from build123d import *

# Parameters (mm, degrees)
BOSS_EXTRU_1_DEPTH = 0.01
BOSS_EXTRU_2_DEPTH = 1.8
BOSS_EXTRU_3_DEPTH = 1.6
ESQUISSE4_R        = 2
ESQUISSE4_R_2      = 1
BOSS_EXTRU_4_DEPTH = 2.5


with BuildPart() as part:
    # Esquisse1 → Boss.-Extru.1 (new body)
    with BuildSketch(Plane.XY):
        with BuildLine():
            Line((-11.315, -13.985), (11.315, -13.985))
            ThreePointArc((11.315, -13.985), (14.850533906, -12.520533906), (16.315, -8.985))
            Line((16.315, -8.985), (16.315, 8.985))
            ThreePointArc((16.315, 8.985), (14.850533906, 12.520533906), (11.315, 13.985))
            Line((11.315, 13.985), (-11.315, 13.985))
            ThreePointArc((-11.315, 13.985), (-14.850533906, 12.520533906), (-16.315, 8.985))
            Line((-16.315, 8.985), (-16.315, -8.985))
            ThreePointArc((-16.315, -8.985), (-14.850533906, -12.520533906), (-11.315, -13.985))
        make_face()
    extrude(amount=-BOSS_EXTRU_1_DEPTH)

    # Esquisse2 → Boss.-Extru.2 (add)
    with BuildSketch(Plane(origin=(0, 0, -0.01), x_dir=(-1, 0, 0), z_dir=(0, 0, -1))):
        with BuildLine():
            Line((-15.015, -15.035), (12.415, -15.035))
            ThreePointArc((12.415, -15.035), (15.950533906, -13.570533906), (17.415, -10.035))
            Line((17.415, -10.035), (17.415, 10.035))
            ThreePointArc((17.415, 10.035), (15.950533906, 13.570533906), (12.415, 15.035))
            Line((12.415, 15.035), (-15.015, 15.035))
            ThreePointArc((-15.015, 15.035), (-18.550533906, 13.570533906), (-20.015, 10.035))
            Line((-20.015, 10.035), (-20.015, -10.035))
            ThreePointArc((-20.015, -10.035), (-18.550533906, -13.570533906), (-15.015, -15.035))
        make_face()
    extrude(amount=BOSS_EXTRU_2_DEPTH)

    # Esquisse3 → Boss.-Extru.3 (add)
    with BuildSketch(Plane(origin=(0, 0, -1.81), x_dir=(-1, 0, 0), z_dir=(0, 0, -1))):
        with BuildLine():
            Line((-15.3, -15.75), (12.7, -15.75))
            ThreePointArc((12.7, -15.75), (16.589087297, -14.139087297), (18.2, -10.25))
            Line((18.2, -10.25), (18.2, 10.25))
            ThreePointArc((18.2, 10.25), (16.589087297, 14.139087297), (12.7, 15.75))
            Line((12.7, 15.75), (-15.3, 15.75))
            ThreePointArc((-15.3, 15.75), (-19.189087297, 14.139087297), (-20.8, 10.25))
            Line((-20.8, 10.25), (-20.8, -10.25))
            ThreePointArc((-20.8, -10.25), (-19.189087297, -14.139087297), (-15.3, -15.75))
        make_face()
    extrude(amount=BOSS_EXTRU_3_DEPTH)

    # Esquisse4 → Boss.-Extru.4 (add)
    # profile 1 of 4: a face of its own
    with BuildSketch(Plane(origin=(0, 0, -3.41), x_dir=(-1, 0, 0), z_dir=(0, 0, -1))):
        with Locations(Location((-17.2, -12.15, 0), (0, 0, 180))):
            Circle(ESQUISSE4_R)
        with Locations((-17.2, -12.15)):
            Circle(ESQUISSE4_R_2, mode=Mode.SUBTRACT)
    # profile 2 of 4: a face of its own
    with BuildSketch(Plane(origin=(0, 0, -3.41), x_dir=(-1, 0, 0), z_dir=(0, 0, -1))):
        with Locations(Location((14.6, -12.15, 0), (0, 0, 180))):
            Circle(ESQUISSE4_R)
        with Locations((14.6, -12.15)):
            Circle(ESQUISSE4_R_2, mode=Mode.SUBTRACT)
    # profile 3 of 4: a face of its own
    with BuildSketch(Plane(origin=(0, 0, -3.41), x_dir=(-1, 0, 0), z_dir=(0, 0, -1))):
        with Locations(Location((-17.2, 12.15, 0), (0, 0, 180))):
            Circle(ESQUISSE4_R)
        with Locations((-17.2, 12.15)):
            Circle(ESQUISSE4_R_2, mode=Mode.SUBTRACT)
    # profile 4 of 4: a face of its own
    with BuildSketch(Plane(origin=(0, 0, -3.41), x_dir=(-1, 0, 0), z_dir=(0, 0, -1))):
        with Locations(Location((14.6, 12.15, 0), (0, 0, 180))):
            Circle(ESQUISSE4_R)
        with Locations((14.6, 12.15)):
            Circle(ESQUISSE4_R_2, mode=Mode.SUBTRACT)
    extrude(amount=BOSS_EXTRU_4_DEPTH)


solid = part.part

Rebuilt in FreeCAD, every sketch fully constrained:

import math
import FreeCAD as App
import Part
import Sketcher

V = App.Vector

doc = App.newDocument("Part")
body = doc.addObject("PartDesign::Body", "Body")

# Sketch on XY plane
sketch1 = body.newObject("Sketcher::SketchObject", "Sketch")
sketch1.AttachmentSupport = (doc.getObject("XY_Plane"), [""])
sketch1.MapMode = "FlatFace"
sketch1.addGeometry(Part.LineSegment(V(-11, -14, 0), V(11, -14, 0)), False)
sketch1.addGeometry(Part.ArcOfCircle(Part.Circle(V(11, -9, 0), V(0, 0, 1), 5), math.radians(-90), math.radians(0)), False)
sketch1.addGeometry(Part.LineSegment(V(16, -9, 0), V(16, 9, 0)), False)
sketch1.addGeometry(Part.ArcOfCircle(Part.Circle(V(11, 9, 0), V(0, 0, 1), 5), math.radians(0), math.radians(90)), False)
sketch1.addGeometry(Part.LineSegment(V(11, 14, 0), V(-11, 14, 0)), False)
sketch1.addGeometry(Part.ArcOfCircle(Part.Circle(V(-11, 9, 0), V(0, 0, 1), 5), math.radians(90), math.radians(180)), False)
sketch1.addGeometry(Part.LineSegment(V(-16, 9, 0), V(-16, -9, 0)), False)
sketch1.addGeometry(Part.ArcOfCircle(Part.Circle(V(-11, -9, 0), V(0, 0, 1), 5), math.radians(180), math.radians(270)), False)
sketch1.addConstraint(Sketcher.Constraint("Tangent", 0, 2, 1, 1))
sketch1.addConstraint(Sketcher.Constraint("Tangent", 1, 2, 2, 1))
sketch1.addConstraint(Sketcher.Constraint("Tangent", 2, 2, 3, 1))
sketch1.addConstraint(Sketcher.Constraint("Tangent", 3, 2, 4, 1))
sketch1.addConstraint(Sketcher.Constraint("Tangent", 4, 2, 5, 1))
sketch1.addConstraint(Sketcher.Constraint("Tangent", 5, 2, 6, 1))
sketch1.addConstraint(Sketcher.Constraint("Tangent", 6, 2, 7, 1))
sketch1.addConstraint(Sketcher.Constraint("Tangent", 7, 2, 0, 1))
sketch1.addConstraint(Sketcher.Constraint("Horizontal", 0))
sketch1.addConstraint(Sketcher.Constraint("Vertical", 2))
sketch1.addConstraint(Sketcher.Constraint("Horizontal", 4))
sketch1.addConstraint(Sketcher.Constraint("Vertical", 6))
sketch1.addConstraint(Sketcher.Constraint("Equal", 1, 3))
sketch1.addConstraint(Sketcher.Constraint("Equal", 3, 5))
sketch1.addConstraint(Sketcher.Constraint("Equal", 5, 7))
sketch1.addConstraint(Sketcher.Constraint("Symmetric", 1, 3, 5, 3, -1, 1))
sketch1.addConstraint(Sketcher.Constraint("Radius", 1, 5.0))
sketch1.addConstraint(Sketcher.Constraint("DistanceX", 0, 1, 0, 2, 22.63))
sketch1.addConstraint(Sketcher.Constraint("DistanceY", 2, 1, 2, 2, 17.97))
pad1 = body.newObject("PartDesign::Pad", "Pad")
pad1.Profile = sketch1
pad1.Length = 0.01
pad1.Reversed = True

# Sketch on XY plane
sketch2 = body.newObject("Sketcher::SketchObject", "Sketch001")
sketch2.AttachmentSupport = (doc.getObject("XY_Plane"), [""])
sketch2.MapMode = "FlatFace"
sketch2.AttachmentOffset = App.Placement(V(0, 0, -0.01), App.Rotation())
sketch2.addGeometry(Part.LineSegment(V(15, -15, 0), V(-12, -15, 0)), False)
sketch2.addGeometry(Part.ArcOfCircle(Part.Circle(V(-12, -10, 0), V(0, 0, 1), 5), math.radians(180), math.radians(270)), False)
sketch2.addGeometry(Part.LineSegment(V(-17, -10, 0), V(-17, 10, 0)), False)
sketch2.addGeometry(Part.ArcOfCircle(Part.Circle(V(-12, 10, 0), V(0, 0, 1), 5), math.radians(90), math.radians(180)), False)
sketch2.addGeometry(Part.LineSegment(V(-12, 15, 0), V(15, 15, 0)), False)
sketch2.addGeometry(Part.ArcOfCircle(Part.Circle(V(15, 10, 0), V(0, 0, 1), 5), math.radians(0), math.radians(90)), False)
sketch2.addGeometry(Part.LineSegment(V(20, 10, 0), V(20, -10, 0)), False)
sketch2.addGeometry(Part.ArcOfCircle(Part.Circle(V(15, -10, 0), V(0, 0, 1), 5), math.radians(-90), math.radians(0)), False)
sketch2.addConstraint(Sketcher.Constraint("Tangent", 0, 2, 1, 2))
sketch2.addConstraint(Sketcher.Constraint("Tangent", 1, 1, 2, 1))
sketch2.addConstraint(Sketcher.Constraint("Tangent", 2, 2, 3, 2))
sketch2.addConstraint(Sketcher.Constraint("Tangent", 3, 1, 4, 1))
sketch2.addConstraint(Sketcher.Constraint("Tangent", 4, 2, 5, 2))
sketch2.addConstraint(Sketcher.Constraint("Tangent", 5, 1, 6, 1))
sketch2.addConstraint(Sketcher.Constraint("Tangent", 6, 2, 7, 2))
sketch2.addConstraint(Sketcher.Constraint("Tangent", 7, 1, 0, 1))
sketch2.addConstraint(Sketcher.Constraint("Horizontal", 0))
sketch2.addConstraint(Sketcher.Constraint("Vertical", 2))
sketch2.addConstraint(Sketcher.Constraint("Horizontal", 4))
sketch2.addConstraint(Sketcher.Constraint("Vertical", 6))
sketch2.addConstraint(Sketcher.Constraint("Equal", 1, 3))
sketch2.addConstraint(Sketcher.Constraint("Equal", 3, 5))
sketch2.addConstraint(Sketcher.Constraint("Equal", 5, 7))
sketch2.addConstraint(Sketcher.Constraint("Radius", 1, 5.0))
sketch2.addConstraint(Sketcher.Constraint("DistanceX", 0, 2, 0, 1, 27.43))
sketch2.addConstraint(Sketcher.Constraint("DistanceY", 2, 1, 2, 2, 20.07))
sketch2.addConstraint(Sketcher.Constraint("DistanceX", 1, 3, -1, 1, 12.415))
sketch2.addConstraint(Sketcher.Constraint("DistanceY", 1, 3, -1, 1, 10.035))
pad2 = body.newObject("PartDesign::Pad", "Pad001")
pad2.Profile = sketch2
pad2.Length = 1.8
pad2.Reversed = True

# Sketch on XY plane
sketch3 = body.newObject("Sketcher::SketchObject", "Sketch002")
sketch3.AttachmentSupport = (doc.getObject("XY_Plane"), [""])
sketch3.MapMode = "FlatFace"
sketch3.AttachmentOffset = App.Placement(V(0, 0, -1.81), App.Rotation())
sketch3.addGeometry(Part.LineSegment(V(15, -16, 0), V(-13, -16, 0)), False)
sketch3.addGeometry(Part.ArcOfCircle(Part.Circle(V(-13, -10, 0), V(0, 0, 1), 5), math.radians(180), math.radians(270)), False)
sketch3.addGeometry(Part.LineSegment(V(-18, -10, 0), V(-18, 10, 0)), False)
sketch3.addGeometry(Part.ArcOfCircle(Part.Circle(V(-13, 10, 0), V(0, 0, 1), 5), math.radians(90), math.radians(180)), False)
sketch3.addGeometry(Part.LineSegment(V(-13, 16, 0), V(15, 16, 0)), False)
sketch3.addGeometry(Part.ArcOfCircle(Part.Circle(V(15, 10, 0), V(0, 0, 1), 5), math.radians(0), math.radians(90)), False)
sketch3.addGeometry(Part.LineSegment(V(21, 10, 0), V(21, -10, 0)), False)
sketch3.addGeometry(Part.ArcOfCircle(Part.Circle(V(15, -10, 0), V(0, 0, 1), 5), math.radians(-90), math.radians(0)), False)
sketch3.addConstraint(Sketcher.Constraint("Tangent", 0, 2, 1, 2))
sketch3.addConstraint(Sketcher.Constraint("Tangent", 1, 1, 2, 1))
sketch3.addConstraint(Sketcher.Constraint("Tangent", 2, 2, 3, 2))
sketch3.addConstraint(Sketcher.Constraint("Tangent", 3, 1, 4, 1))
sketch3.addConstraint(Sketcher.Constraint("Tangent", 4, 2, 5, 2))
sketch3.addConstraint(Sketcher.Constraint("Tangent", 5, 1, 6, 1))
sketch3.addConstraint(Sketcher.Constraint("Tangent", 6, 2, 7, 2))
sketch3.addConstraint(Sketcher.Constraint("Tangent", 7, 1, 0, 1))
sketch3.addConstraint(Sketcher.Constraint("Horizontal", 0))
sketch3.addConstraint(Sketcher.Constraint("Vertical", 2))
sketch3.addConstraint(Sketcher.Constraint("Horizontal", 4))
sketch3.addConstraint(Sketcher.Constraint("Vertical", 6))
sketch3.addConstraint(Sketcher.Constraint("Equal", 1, 3))
sketch3.addConstraint(Sketcher.Constraint("Equal", 3, 5))
sketch3.addConstraint(Sketcher.Constraint("Equal", 5, 7))
sketch3.addConstraint(Sketcher.Constraint("Radius", 1, 5.5))
sketch3.addConstraint(Sketcher.Constraint("DistanceX", 0, 2, 0, 1, 28.0))
sketch3.addConstraint(Sketcher.Constraint("DistanceY", 2, 1, 2, 2, 20.5))
sketch3.addConstraint(Sketcher.Constraint("DistanceX", 1, 3, -1, 1, 12.7))
sketch3.addConstraint(Sketcher.Constraint("DistanceY", 1, 3, -1, 1, 10.25))
pad3 = body.newObject("PartDesign::Pad", "Pad002")
pad3.Profile = sketch3
pad3.Length = 1.6
pad3.Reversed = True

# Sketch on XY plane
sketch4 = body.newObject("Sketcher::SketchObject", "Sketch003")
sketch4.AttachmentSupport = (doc.getObject("XY_Plane"), [""])
sketch4.MapMode = "FlatFace"
sketch4.AttachmentOffset = App.Placement(V(0, 0, -3.41), App.Rotation())
sketch4.addGeometry(Part.Circle(V(17.2, -12.2, 0), V(0, 0, 1), 2), False)
sketch4.addGeometry(Part.Circle(V(17.2, -12.2, 0), V(0, 0, 1), 1), False)
sketch4.addGeometry(Part.Circle(V(-14.6, -12.2, 0), V(0, 0, 1), 2), False)
sketch4.addGeometry(Part.Circle(V(-14.6, -12.2, 0), V(0, 0, 1), 1), False)
sketch4.addGeometry(Part.Circle(V(17.2, 12.2, 0), V(0, 0, 1), 2), False)
sketch4.addGeometry(Part.Circle(V(17.2, 12.2, 0), V(0, 0, 1), 1), False)
sketch4.addGeometry(Part.Circle(V(-14.6, 12.2, 0), V(0, 0, 1), 2), False)
sketch4.addGeometry(Part.Circle(V(-14.6, 12.2, 0), V(0, 0, 1), 1), False)
sketch4.addConstraint(Sketcher.Constraint("Coincident", 1, 3, 0, 3))
sketch4.addConstraint(Sketcher.Constraint("Coincident", 3, 3, 2, 3))
sketch4.addConstraint(Sketcher.Constraint("Coincident", 5, 3, 4, 3))
sketch4.addConstraint(Sketcher.Constraint("Coincident", 7, 3, 6, 3))
sketch4.addConstraint(Sketcher.Constraint("Equal", 0, 2))
sketch4.addConstraint(Sketcher.Constraint("Equal", 1, 3))
sketch4.addConstraint(Sketcher.Constraint("Equal", 2, 4))
sketch4.addConstraint(Sketcher.Constraint("Equal", 3, 5))
sketch4.addConstraint(Sketcher.Constraint("Equal", 4, 6))
sketch4.addConstraint(Sketcher.Constraint("Equal", 5, 7))
sketch4.addConstraint(Sketcher.Constraint("Symmetric", 0, 3, 4, 3, -1))
sketch4.addConstraint(Sketcher.Constraint("Symmetric", 2, 3, 6, 3, -1))
sketch4.addConstraint(Sketcher.Constraint("Horizontal", 1, 3, 2, 3))
sketch4.addConstraint(Sketcher.Constraint("Diameter", 0, 4.0))
sketch4.addConstraint(Sketcher.Constraint("Diameter", 1, 2.0))
sketch4.addConstraint(Sketcher.Constraint("DistanceX", -1, 1, 0, 3, 17.2))
sketch4.addConstraint(Sketcher.Constraint("DistanceX", 2, 3, -1, 1, 14.6))
sketch4.addConstraint(Sketcher.Constraint("DistanceY", 0, 3, 4, 3, 24.3))
pad4 = body.newObject("PartDesign::Pad", "Pad003")
pad4.Profile = sketch4
pad4.Length = 2.5
pad4.Reversed = True

doc.recompute()
